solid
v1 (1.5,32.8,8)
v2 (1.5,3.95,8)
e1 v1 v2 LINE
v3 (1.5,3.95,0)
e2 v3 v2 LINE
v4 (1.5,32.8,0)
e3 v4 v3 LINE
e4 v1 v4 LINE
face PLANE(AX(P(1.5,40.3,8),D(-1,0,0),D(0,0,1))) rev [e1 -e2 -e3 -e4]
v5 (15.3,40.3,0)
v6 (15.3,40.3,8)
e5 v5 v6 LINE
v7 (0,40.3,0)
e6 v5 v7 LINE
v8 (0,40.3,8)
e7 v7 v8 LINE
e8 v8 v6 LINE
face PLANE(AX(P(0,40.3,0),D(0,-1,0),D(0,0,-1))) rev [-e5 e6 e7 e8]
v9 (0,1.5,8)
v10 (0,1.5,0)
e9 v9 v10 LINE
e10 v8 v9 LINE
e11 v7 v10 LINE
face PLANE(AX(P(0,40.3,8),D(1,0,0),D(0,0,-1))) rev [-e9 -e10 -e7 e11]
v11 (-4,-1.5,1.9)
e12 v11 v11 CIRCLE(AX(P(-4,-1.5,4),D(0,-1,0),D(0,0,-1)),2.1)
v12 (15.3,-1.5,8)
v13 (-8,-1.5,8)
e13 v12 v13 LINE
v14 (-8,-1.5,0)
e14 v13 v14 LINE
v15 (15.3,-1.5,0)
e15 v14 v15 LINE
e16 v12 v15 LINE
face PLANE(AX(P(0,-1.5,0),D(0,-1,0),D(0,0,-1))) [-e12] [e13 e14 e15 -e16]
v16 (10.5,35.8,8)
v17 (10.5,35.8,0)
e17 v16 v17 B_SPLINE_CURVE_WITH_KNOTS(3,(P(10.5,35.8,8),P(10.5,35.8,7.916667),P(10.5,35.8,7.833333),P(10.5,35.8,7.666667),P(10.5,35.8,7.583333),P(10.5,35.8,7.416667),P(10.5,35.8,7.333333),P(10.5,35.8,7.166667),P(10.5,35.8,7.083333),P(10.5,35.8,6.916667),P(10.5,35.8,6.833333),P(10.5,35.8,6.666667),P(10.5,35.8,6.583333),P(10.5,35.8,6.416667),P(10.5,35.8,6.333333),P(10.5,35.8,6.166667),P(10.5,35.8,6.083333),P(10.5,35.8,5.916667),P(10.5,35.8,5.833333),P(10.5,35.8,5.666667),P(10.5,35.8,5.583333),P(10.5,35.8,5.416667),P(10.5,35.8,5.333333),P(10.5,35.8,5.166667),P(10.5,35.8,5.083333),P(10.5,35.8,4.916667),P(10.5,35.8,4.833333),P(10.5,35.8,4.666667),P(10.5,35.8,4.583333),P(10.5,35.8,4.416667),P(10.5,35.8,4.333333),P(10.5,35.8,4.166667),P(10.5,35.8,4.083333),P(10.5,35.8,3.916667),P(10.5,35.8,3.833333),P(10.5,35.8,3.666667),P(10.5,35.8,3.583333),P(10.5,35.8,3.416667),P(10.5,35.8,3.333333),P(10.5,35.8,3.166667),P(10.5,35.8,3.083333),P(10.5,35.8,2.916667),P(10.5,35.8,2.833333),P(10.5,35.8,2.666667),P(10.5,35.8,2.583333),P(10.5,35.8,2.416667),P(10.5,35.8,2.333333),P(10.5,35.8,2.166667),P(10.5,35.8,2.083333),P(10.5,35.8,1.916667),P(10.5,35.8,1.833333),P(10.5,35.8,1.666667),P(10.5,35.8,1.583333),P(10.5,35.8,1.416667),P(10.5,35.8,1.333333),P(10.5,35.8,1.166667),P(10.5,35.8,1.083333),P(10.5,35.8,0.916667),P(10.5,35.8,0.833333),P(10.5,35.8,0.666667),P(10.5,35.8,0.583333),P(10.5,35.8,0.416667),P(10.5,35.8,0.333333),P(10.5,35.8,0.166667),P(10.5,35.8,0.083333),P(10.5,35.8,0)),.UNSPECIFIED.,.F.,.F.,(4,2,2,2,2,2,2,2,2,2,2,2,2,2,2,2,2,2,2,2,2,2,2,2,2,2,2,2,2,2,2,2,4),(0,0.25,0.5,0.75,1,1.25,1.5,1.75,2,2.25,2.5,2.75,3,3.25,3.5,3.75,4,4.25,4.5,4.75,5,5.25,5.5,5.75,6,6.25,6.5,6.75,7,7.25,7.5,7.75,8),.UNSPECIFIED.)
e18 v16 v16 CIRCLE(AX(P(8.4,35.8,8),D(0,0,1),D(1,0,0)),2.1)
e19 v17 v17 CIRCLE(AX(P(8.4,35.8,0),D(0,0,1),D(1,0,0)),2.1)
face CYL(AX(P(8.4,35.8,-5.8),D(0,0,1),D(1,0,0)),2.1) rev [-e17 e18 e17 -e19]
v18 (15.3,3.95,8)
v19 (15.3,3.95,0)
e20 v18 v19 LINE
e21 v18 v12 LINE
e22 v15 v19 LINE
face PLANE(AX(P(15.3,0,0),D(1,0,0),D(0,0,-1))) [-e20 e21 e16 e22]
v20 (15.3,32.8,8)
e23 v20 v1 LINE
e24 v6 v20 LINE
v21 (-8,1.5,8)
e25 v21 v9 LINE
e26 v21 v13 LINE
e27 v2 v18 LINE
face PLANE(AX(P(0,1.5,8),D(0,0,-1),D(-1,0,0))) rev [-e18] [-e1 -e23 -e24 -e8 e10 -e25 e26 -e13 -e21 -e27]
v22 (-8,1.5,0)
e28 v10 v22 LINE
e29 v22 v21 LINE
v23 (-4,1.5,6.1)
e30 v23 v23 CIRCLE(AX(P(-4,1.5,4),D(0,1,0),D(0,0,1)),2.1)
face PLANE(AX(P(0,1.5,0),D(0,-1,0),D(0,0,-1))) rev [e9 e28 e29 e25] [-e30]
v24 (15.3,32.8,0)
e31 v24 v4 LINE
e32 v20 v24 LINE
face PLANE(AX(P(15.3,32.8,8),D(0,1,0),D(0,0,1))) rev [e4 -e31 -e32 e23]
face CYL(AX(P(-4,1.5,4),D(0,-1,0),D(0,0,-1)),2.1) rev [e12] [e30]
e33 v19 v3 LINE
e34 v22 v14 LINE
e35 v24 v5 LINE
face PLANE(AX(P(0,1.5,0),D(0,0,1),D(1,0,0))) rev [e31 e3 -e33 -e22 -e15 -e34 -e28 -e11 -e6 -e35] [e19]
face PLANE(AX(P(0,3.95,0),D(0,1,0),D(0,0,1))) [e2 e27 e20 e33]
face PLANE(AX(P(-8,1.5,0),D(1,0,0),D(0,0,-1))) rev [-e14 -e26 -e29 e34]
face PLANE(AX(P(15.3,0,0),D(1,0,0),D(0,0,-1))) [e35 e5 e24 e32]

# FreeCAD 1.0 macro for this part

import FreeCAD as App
import Part
import Sketcher
Q = App.Units.Quantity

doc = App.newDocument("Part")
body = doc.addObject("PartDesign::Body", "Body")

sketch1 = body.newObject("Sketcher::SketchObject", "Sketch")
sketch1.AttachmentSupport = (doc.getObject("XZ_Plane"), [""])
sketch1.MapMode = "FlatFace"
sketch1.addGeometry([
    Part.LineSegment(App.Vector(-8, 0, 0), App.Vector(-8, 8, 0)),
    Part.LineSegment(App.Vector(-8, 8, 0), App.Vector(0, 8, 0)),
    Part.LineSegment(App.Vector(0, 8, 0), App.Vector(0, 0, 0)),
    Part.LineSegment(App.Vector(0, 0, 0), App.Vector(-8, 0, 0)),
    Part.Circle(App.Vector(-4, 4, 0), App.Vector(0, 0, 1), 2.1),
], False)
sketch1.addConstraint([
    Sketcher.Constraint("Coincident", 0, 2, 1, 1),
    Sketcher.Constraint("Coincident", 1, 2, 2, 1),
    Sketcher.Constraint("Coincident", 2, 2, 3, 1),
    Sketcher.Constraint("Coincident", 3, 2, 0, 1),
    Sketcher.Constraint("Vertical", 0),
    Sketcher.Constraint("Horizontal", 1),
    Sketcher.Constraint("Vertical", 2),
    Sketcher.Constraint("Horizontal", 3),
    Sketcher.Constraint("Coincident", 2, 2, -1, 1),
    Sketcher.Constraint("Equal", 3, 0),
    Sketcher.Constraint("Diameter", 4, Q("4.2 mm")),
    Sketcher.Constraint("DistanceX", 1, 1, 1, 2, Q("8 mm")),
    Sketcher.Constraint("DistanceX", 4, 3, -1, 1, Q("4 mm")),
    Sketcher.Constraint("DistanceY", -1, 1, 4, 3, Q("4 mm")),
])
pad1 = body.newObject("PartDesign::Pad", "Pad")
pad1.Profile = sketch1
pad1.Length = 1.5
pad1.Reversed = True
body2 = doc.addObject("PartDesign::Body", "Body001")

sketch2 = body2.newObject("Sketcher::SketchObject", "Sketch001")
sketch2.AttachmentSupport = (doc.getObject("YZ_Plane001"), [""])
sketch2.MapMode = "FlatFace"
sketch2.addGeometry([
    Part.LineSegment(App.Vector(0, 8, 0), App.Vector(-1.5, 8, 0)),
    Part.LineSegment(App.Vector(-1.5, 8, 0), App.Vector(-1.5, 0, 0)),
    Part.LineSegment(App.Vector(-1.5, 0, 0), App.Vector(0, 0, 0)),
    Part.LineSegment(App.Vector(0, 0, 0), App.Vector(0, 8, 0)),
], False)
sketch2.addConstraint([
    Sketcher.Constraint("Coincident", 0, 2, 1, 1),
    Sketcher.Constraint("Coincident", 1, 2, 2, 1),
    Sketcher.Constraint("Coincident", 2, 2, 3, 1),
    Sketcher.Constraint("Coincident", 3, 2, 0, 1),
    Sketcher.Constraint("Horizontal", 0),
    Sketcher.Constraint("Vertical", 1),
    Sketcher.Constraint("Horizontal", 2),
    Sketcher.Constraint("Vertical", 3),
    Sketcher.Constraint("Coincident", 2, 2, -1, 1),
    Sketcher.Constraint("DistanceY", 1, 2, 1, 1, Q("8 mm")),
    Sketcher.Constraint("DistanceX", 0, 2, 0, 1, Q("1.5 mm")),
])
pad2 = body2.newObject("PartDesign::Pad", "Pad001")
pad2.Profile = sketch2
pad2.Length = 15.3
body.AllowCompound = True
doc.recompute()

boolean = body.newObject("PartDesign::Boolean", "Boolean")
boolean.Type = "Fuse"
boolean.addObjects([body2])

sketch3 = body.newObject("Sketcher::SketchObject", "Sketch002")
sketch3.AttachmentSupport = (doc.getObject("XZ_Plane"), [""])
sketch3.MapMode = "FlatFace"
sketch3.AttachmentOffset = App.Placement(App.Vector(0, 0, 1.5), App.Rotation())
sketch3.addGeometry([
    Part.LineSegment(App.Vector(-8, 8, 0), App.Vector(-8, 0, 0)),
    Part.LineSegment(App.Vector(-8, 0, 0), App.Vector(0, 0, 0)),
    Part.LineSegment(App.Vector(0, 0, 0), App.Vector(0, 8, 0)),
    Part.LineSegment(App.Vector(0, 8, 0), App.Vector(-8, 8, 0)),
    Part.Circle(App.Vector(-4, 4, 0), App.Vector(0, 0, 1), 2.1),
], False)
sketch3.addConstraint([
    Sketcher.Constraint("Coincident", 0, 2, 1, 1),
    Sketcher.Constraint("Coincident", 1, 2, 2, 1),
    Sketcher.Constraint("Coincident", 2, 2, 3, 1),
    Sketcher.Constraint("Coincident", 3, 2, 0, 1),
    Sketcher.Constraint("Vertical", 0),
    Sketcher.Constraint("Horizontal", 1),
    Sketcher.Constraint("Vertical", 2),
    Sketcher.Constraint("Horizontal", 3),
    Sketcher.Constraint("Coincident", 1, 2, -1, 1),
    Sketcher.Constraint("Equal", 3, 0),
    Sketcher.Constraint("Diameter", 4, Q("4.2 mm")),
    Sketcher.Constraint("DistanceX", 1, 1, 1, 2, Q("8 mm")),
    Sketcher.Constraint("DistanceX", 4, 3, -1, 1, Q("4 mm")),
    Sketcher.Constraint("DistanceY", -1, 1, 4, 3, Q("4 mm")),
])
pad3 = body.newObject("PartDesign::Pad", "Pad002")
pad3.Profile = sketch3
pad3.Length = 1.5
pad3.Reversed = True

sketch4 = body.newObject("Sketcher::SketchObject", "Sketch003")
sketch4.AttachmentSupport = (doc.getObject("XZ_Plane"), [""])
sketch4.MapMode = "FlatFace"
sketch4.addGeometry([
    Part.LineSegment(App.Vector(0, 0, 0), App.Vector(0, 8, 0)),
    Part.LineSegment(App.Vector(0, 8, 0), App.Vector(1.5, 8, 0)),
    Part.LineSegment(App.Vector(1.5, 8, 0), App.Vector(1.5, 0, 0)),
    Part.LineSegment(App.Vector(1.5, 0, 0), App.Vector(0, 0, 0)),
], False)
sketch4.addConstraint([
    Sketcher.Constraint("Coincident", 0, 2, 1, 1),
    Sketcher.Constraint("Coincident", 1, 2, 2, 1),
    Sketcher.Constraint("Coincident", 2, 2, 3, 1),
    Sketcher.Constraint("Coincident", 3, 2, 0, 1),
    Sketcher.Constraint("Vertical", 0),
    Sketcher.Constraint("Horizontal", 1),
    Sketcher.Constraint("Vertical", 2),
    Sketcher.Constraint("Horizontal", 3),
    Sketcher.Constraint("Coincident", 3, 2, -1, 1),
    Sketcher.Constraint("DistanceY", 0, 1, 0, 2, Q("8 mm")),
    Sketcher.Constraint("DistanceX", 1, 1, 1, 2, Q("1.5 mm")),
])
pad4 = body.newObject("PartDesign::Pad", "Pad003")
pad4.Profile = sketch4
pad4.Length = 40.3
pad4.Reversed = True

sketch5 = body.newObject("Sketcher::SketchObject", "Sketch004")
sketch5.AttachmentSupport = (doc.getObject("YZ_Plane"), [""])
sketch5.MapMode = "FlatFace"
sketch5.AttachmentOffset = App.Placement(App.Vector(0, 0, 1.5), App.Rotation())
sketch5.addGeometry([
    Part.LineSegment(App.Vector(40.3, 8, 0), App.Vector(32.8, 8, 0)),
    Part.LineSegment(App.Vector(32.8, 8, 0), App.Vector(32.8, 0, 0)),
    Part.LineSegment(App.Vector(32.8, 0, 0), App.Vector(40.3, 0, 0)),
    Part.LineSegment(App.Vector(40.3, 0, 0), App.Vector(40.3, 8, 0)),
], False)
sketch5.addConstraint([
    Sketcher.Constraint("Coincident", 0, 2, 1, 1),
    Sketcher.Constraint("Coincident", 1, 2, 2, 1),
    Sketcher.Constraint("Coincident", 2, 2, 3, 1),
    Sketcher.Constraint("Coincident", 3, 2, 0, 1),
    Sketcher.Constraint("Horizontal", 0),
    Sketcher.Constraint("Vertical", 1),
    Sketcher.Constraint("Horizontal", 2),
    Sketcher.Constraint("Vertical", 3),
    Sketcher.Constraint("PointOnObject", 1, 2, -1),
    Sketcher.Constraint("DistanceY", 1, 2, 1, 1, Q("8 mm")),
    Sketcher.Constraint("DistanceX", 0, 2, 0, 1, Q("7.5 mm")),
    Sketcher.Constraint("DistanceX", -1, 1, 0, 2, Q("32.8 mm")),
])
pad5 = body.newObject("PartDesign::Pad", "Pad004")
pad5.Profile = sketch5
pad5.Length = 13.8

sketch6 = body.newObject("Sketcher::SketchObject", "Sketch005")
sketch6.AttachmentSupport = (doc.getObject("XY_Plane"), [""])
sketch6.MapMode = "FlatFace"
sketch6.AttachmentOffset = App.Placement(App.Vector(0, 0, 8), App.Rotation())
sketch6.addGeometry(Part.Circle(App.Vector(8.4, 35.8, 0), App.Vector(0, 0, 1), 2.1), False)
sketch6.addConstraint([
    Sketcher.Constraint("Diameter", 0, Q("4.2 mm")),
    Sketcher.Constraint("DistanceX", -1, 1, 0, 3, Q("8.4 mm")),
    Sketcher.Constraint("DistanceY", -1, 1, 0, 3, Q("35.8 mm")),
])
pocket1 = body.newObject("PartDesign::Pocket", "Pocket")
pocket1.Profile = sketch6
pocket1.Length = 13.8

sketch7 = body.newObject("Sketcher::SketchObject", "Sketch006")
sketch7.AttachmentSupport = (doc.getObject("XZ_Plane"), [""])
sketch7.MapMode = "FlatFace"
sketch7.addGeometry([
    Part.LineSegment(App.Vector(1.5, 0, 0), App.Vector(1.5, 8, 0)),
    Part.LineSegment(App.Vector(1.5, 8, 0), App.Vector(15.3, 8, 0)),
    Part.LineSegment(App.Vector(15.3, 8, 0), App.Vector(15.3, 0, 0)),
    Part.LineSegment(App.Vector(15.3, 0, 0), App.Vector(1.5, 0, 0)),
], False)
sketch7.addConstraint([
    Sketcher.Constraint("Coincident", 0, 2, 1, 1),
    Sketcher.Constraint("Coincident", 1, 2, 2, 1),
    Sketcher.Constraint("Coincident", 2, 2, 3, 1),
    Sketcher.Constraint("Coincident", 3, 2, 0, 1),
    Sketcher.Constraint("Vertical", 0),
    Sketcher.Constraint("Horizontal", 1),
    Sketcher.Constraint("Vertical", 2),
    Sketcher.Constraint("Horizontal", 3),
    Sketcher.Constraint("PointOnObject", 2, 2, -1),
    Sketcher.Constraint("DistanceY", 0, 1, 0, 2, Q("8 mm")),
    Sketcher.Constraint("DistanceX", 1, 1, 1, 2, Q("13.8 mm")),
    Sketcher.Constraint("DistanceX", -1, 1, 0, 2, Q("1.5 mm")),
])
pad6 = body.newObject("PartDesign::Pad", "Pad005")
pad6.Profile = sketch7
pad6.Length = 3.95
pad6.Reversed = True

doc.recompute()
